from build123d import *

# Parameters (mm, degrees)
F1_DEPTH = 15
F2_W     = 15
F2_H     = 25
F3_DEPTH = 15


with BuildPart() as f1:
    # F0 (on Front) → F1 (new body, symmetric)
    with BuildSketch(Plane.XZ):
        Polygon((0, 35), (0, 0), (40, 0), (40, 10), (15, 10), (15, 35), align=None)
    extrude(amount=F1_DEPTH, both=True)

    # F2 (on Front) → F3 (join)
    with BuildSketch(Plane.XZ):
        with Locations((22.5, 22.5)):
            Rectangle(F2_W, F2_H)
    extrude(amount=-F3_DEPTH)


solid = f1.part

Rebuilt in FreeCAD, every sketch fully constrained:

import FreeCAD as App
import Part
import Sketcher
from FreeCAD import Vector


def add_polygon(sketch, points):
    """Adds a closed chain of lines whose ends are joined by coincident constraints."""
    first, n = sketch.GeometryCount, len(points)
    for a, b in zip(points, points[1:] + points[:1]):
        sketch.addGeometry(Part.LineSegment(App.Vector(*a, 0), App.Vector(*b, 0)), False)
    for i in range(n):
        sketch.addConstraint(Sketcher.Constraint("Coincident", first + i, 2, first + (i + 1) % n, 1))

doc = App.newDocument("Part")
body = doc.addObject("PartDesign::Body", "Body")

sketch1 = body.newObject("Sketcher::SketchObject", "Sketch")
sketch1.AttachmentSupport = (doc.getObject("XZ_Plane"), [""])
sketch1.MapMode = "FlatFace"
add_polygon(sketch1, [(0, 35), (0, 0), (40, 0), (40, 10), (15, 10), (15, 35)])
sketch1.addConstraint(Sketcher.Constraint("Vertical", 0))
sketch1.addConstraint(Sketcher.Constraint("Horizontal", 1))
sketch1.addConstraint(Sketcher.Constraint("Vertical", 2))
sketch1.addConstraint(Sketcher.Constraint("Horizontal", 3))
sketch1.addConstraint(Sketcher.Constraint("Vertical", 4))
sketch1.addConstraint(Sketcher.Constraint("Horizontal", 5))
sketch1.addConstraint(Sketcher.Constraint("Coincident", 0, 2, -1, 1))
sketch1.addConstraint(Sketcher.Constraint("Equal", 3, 4))
sketch1.addConstraint(Sketcher.Constraint("DistanceX", 1, 1, 1, 2, 40.0))
sketch1.addConstraint(Sketcher.Constraint("DistanceX", 3, 2, 3, 1, 25.0))
sketch1.addConstraint(Sketcher.Constraint("DistanceY", 0, 2, 0, 1, 35.0))
pad1 = body.newObject("PartDesign::Pad", "Pad")
pad1.Profile = sketch1
pad1.Length = 30
pad1.Midplane = True

sketch2 = body.newObject("Sketcher::SketchObject", "Sketch001")
sketch2.AttachmentSupport = (doc.getObject("XZ_Plane"), [""])
sketch2.MapMode = "FlatFace"
add_polygon(sketch2, [(15, 35), (15, 10), (30, 10), (30, 35)])
sketch2.addConstraint(Sketcher.Constraint("Vertical", 0))
sketch2.addConstraint(Sketcher.Constraint("Horizontal", 1))
sketch2.addConstraint(Sketcher.Constraint("Vertical", 2))
sketch2.addConstraint(Sketcher.Constraint("Horizontal", 3))
sketch2.addConstraint(Sketcher.Constraint("DistanceX", 1, 1, 1, 2, 15.0))
sketch2.addConstraint(Sketcher.Constraint("DistanceY", 0, 2, 0, 1, 25.0))
sketch2.addConstraint(Sketcher.Constraint("DistanceX", -1, 1, 0, 2, 15.0))
sketch2.addConstraint(Sketcher.Constraint("DistanceY", -1, 1, 0, 2, 10.0))
pad2 = body.newObject("PartDesign::Pad", "Pad001")
pad2.Profile = sketch2
pad2.Length = 15
pad2.Reversed = True

doc.recompute()
